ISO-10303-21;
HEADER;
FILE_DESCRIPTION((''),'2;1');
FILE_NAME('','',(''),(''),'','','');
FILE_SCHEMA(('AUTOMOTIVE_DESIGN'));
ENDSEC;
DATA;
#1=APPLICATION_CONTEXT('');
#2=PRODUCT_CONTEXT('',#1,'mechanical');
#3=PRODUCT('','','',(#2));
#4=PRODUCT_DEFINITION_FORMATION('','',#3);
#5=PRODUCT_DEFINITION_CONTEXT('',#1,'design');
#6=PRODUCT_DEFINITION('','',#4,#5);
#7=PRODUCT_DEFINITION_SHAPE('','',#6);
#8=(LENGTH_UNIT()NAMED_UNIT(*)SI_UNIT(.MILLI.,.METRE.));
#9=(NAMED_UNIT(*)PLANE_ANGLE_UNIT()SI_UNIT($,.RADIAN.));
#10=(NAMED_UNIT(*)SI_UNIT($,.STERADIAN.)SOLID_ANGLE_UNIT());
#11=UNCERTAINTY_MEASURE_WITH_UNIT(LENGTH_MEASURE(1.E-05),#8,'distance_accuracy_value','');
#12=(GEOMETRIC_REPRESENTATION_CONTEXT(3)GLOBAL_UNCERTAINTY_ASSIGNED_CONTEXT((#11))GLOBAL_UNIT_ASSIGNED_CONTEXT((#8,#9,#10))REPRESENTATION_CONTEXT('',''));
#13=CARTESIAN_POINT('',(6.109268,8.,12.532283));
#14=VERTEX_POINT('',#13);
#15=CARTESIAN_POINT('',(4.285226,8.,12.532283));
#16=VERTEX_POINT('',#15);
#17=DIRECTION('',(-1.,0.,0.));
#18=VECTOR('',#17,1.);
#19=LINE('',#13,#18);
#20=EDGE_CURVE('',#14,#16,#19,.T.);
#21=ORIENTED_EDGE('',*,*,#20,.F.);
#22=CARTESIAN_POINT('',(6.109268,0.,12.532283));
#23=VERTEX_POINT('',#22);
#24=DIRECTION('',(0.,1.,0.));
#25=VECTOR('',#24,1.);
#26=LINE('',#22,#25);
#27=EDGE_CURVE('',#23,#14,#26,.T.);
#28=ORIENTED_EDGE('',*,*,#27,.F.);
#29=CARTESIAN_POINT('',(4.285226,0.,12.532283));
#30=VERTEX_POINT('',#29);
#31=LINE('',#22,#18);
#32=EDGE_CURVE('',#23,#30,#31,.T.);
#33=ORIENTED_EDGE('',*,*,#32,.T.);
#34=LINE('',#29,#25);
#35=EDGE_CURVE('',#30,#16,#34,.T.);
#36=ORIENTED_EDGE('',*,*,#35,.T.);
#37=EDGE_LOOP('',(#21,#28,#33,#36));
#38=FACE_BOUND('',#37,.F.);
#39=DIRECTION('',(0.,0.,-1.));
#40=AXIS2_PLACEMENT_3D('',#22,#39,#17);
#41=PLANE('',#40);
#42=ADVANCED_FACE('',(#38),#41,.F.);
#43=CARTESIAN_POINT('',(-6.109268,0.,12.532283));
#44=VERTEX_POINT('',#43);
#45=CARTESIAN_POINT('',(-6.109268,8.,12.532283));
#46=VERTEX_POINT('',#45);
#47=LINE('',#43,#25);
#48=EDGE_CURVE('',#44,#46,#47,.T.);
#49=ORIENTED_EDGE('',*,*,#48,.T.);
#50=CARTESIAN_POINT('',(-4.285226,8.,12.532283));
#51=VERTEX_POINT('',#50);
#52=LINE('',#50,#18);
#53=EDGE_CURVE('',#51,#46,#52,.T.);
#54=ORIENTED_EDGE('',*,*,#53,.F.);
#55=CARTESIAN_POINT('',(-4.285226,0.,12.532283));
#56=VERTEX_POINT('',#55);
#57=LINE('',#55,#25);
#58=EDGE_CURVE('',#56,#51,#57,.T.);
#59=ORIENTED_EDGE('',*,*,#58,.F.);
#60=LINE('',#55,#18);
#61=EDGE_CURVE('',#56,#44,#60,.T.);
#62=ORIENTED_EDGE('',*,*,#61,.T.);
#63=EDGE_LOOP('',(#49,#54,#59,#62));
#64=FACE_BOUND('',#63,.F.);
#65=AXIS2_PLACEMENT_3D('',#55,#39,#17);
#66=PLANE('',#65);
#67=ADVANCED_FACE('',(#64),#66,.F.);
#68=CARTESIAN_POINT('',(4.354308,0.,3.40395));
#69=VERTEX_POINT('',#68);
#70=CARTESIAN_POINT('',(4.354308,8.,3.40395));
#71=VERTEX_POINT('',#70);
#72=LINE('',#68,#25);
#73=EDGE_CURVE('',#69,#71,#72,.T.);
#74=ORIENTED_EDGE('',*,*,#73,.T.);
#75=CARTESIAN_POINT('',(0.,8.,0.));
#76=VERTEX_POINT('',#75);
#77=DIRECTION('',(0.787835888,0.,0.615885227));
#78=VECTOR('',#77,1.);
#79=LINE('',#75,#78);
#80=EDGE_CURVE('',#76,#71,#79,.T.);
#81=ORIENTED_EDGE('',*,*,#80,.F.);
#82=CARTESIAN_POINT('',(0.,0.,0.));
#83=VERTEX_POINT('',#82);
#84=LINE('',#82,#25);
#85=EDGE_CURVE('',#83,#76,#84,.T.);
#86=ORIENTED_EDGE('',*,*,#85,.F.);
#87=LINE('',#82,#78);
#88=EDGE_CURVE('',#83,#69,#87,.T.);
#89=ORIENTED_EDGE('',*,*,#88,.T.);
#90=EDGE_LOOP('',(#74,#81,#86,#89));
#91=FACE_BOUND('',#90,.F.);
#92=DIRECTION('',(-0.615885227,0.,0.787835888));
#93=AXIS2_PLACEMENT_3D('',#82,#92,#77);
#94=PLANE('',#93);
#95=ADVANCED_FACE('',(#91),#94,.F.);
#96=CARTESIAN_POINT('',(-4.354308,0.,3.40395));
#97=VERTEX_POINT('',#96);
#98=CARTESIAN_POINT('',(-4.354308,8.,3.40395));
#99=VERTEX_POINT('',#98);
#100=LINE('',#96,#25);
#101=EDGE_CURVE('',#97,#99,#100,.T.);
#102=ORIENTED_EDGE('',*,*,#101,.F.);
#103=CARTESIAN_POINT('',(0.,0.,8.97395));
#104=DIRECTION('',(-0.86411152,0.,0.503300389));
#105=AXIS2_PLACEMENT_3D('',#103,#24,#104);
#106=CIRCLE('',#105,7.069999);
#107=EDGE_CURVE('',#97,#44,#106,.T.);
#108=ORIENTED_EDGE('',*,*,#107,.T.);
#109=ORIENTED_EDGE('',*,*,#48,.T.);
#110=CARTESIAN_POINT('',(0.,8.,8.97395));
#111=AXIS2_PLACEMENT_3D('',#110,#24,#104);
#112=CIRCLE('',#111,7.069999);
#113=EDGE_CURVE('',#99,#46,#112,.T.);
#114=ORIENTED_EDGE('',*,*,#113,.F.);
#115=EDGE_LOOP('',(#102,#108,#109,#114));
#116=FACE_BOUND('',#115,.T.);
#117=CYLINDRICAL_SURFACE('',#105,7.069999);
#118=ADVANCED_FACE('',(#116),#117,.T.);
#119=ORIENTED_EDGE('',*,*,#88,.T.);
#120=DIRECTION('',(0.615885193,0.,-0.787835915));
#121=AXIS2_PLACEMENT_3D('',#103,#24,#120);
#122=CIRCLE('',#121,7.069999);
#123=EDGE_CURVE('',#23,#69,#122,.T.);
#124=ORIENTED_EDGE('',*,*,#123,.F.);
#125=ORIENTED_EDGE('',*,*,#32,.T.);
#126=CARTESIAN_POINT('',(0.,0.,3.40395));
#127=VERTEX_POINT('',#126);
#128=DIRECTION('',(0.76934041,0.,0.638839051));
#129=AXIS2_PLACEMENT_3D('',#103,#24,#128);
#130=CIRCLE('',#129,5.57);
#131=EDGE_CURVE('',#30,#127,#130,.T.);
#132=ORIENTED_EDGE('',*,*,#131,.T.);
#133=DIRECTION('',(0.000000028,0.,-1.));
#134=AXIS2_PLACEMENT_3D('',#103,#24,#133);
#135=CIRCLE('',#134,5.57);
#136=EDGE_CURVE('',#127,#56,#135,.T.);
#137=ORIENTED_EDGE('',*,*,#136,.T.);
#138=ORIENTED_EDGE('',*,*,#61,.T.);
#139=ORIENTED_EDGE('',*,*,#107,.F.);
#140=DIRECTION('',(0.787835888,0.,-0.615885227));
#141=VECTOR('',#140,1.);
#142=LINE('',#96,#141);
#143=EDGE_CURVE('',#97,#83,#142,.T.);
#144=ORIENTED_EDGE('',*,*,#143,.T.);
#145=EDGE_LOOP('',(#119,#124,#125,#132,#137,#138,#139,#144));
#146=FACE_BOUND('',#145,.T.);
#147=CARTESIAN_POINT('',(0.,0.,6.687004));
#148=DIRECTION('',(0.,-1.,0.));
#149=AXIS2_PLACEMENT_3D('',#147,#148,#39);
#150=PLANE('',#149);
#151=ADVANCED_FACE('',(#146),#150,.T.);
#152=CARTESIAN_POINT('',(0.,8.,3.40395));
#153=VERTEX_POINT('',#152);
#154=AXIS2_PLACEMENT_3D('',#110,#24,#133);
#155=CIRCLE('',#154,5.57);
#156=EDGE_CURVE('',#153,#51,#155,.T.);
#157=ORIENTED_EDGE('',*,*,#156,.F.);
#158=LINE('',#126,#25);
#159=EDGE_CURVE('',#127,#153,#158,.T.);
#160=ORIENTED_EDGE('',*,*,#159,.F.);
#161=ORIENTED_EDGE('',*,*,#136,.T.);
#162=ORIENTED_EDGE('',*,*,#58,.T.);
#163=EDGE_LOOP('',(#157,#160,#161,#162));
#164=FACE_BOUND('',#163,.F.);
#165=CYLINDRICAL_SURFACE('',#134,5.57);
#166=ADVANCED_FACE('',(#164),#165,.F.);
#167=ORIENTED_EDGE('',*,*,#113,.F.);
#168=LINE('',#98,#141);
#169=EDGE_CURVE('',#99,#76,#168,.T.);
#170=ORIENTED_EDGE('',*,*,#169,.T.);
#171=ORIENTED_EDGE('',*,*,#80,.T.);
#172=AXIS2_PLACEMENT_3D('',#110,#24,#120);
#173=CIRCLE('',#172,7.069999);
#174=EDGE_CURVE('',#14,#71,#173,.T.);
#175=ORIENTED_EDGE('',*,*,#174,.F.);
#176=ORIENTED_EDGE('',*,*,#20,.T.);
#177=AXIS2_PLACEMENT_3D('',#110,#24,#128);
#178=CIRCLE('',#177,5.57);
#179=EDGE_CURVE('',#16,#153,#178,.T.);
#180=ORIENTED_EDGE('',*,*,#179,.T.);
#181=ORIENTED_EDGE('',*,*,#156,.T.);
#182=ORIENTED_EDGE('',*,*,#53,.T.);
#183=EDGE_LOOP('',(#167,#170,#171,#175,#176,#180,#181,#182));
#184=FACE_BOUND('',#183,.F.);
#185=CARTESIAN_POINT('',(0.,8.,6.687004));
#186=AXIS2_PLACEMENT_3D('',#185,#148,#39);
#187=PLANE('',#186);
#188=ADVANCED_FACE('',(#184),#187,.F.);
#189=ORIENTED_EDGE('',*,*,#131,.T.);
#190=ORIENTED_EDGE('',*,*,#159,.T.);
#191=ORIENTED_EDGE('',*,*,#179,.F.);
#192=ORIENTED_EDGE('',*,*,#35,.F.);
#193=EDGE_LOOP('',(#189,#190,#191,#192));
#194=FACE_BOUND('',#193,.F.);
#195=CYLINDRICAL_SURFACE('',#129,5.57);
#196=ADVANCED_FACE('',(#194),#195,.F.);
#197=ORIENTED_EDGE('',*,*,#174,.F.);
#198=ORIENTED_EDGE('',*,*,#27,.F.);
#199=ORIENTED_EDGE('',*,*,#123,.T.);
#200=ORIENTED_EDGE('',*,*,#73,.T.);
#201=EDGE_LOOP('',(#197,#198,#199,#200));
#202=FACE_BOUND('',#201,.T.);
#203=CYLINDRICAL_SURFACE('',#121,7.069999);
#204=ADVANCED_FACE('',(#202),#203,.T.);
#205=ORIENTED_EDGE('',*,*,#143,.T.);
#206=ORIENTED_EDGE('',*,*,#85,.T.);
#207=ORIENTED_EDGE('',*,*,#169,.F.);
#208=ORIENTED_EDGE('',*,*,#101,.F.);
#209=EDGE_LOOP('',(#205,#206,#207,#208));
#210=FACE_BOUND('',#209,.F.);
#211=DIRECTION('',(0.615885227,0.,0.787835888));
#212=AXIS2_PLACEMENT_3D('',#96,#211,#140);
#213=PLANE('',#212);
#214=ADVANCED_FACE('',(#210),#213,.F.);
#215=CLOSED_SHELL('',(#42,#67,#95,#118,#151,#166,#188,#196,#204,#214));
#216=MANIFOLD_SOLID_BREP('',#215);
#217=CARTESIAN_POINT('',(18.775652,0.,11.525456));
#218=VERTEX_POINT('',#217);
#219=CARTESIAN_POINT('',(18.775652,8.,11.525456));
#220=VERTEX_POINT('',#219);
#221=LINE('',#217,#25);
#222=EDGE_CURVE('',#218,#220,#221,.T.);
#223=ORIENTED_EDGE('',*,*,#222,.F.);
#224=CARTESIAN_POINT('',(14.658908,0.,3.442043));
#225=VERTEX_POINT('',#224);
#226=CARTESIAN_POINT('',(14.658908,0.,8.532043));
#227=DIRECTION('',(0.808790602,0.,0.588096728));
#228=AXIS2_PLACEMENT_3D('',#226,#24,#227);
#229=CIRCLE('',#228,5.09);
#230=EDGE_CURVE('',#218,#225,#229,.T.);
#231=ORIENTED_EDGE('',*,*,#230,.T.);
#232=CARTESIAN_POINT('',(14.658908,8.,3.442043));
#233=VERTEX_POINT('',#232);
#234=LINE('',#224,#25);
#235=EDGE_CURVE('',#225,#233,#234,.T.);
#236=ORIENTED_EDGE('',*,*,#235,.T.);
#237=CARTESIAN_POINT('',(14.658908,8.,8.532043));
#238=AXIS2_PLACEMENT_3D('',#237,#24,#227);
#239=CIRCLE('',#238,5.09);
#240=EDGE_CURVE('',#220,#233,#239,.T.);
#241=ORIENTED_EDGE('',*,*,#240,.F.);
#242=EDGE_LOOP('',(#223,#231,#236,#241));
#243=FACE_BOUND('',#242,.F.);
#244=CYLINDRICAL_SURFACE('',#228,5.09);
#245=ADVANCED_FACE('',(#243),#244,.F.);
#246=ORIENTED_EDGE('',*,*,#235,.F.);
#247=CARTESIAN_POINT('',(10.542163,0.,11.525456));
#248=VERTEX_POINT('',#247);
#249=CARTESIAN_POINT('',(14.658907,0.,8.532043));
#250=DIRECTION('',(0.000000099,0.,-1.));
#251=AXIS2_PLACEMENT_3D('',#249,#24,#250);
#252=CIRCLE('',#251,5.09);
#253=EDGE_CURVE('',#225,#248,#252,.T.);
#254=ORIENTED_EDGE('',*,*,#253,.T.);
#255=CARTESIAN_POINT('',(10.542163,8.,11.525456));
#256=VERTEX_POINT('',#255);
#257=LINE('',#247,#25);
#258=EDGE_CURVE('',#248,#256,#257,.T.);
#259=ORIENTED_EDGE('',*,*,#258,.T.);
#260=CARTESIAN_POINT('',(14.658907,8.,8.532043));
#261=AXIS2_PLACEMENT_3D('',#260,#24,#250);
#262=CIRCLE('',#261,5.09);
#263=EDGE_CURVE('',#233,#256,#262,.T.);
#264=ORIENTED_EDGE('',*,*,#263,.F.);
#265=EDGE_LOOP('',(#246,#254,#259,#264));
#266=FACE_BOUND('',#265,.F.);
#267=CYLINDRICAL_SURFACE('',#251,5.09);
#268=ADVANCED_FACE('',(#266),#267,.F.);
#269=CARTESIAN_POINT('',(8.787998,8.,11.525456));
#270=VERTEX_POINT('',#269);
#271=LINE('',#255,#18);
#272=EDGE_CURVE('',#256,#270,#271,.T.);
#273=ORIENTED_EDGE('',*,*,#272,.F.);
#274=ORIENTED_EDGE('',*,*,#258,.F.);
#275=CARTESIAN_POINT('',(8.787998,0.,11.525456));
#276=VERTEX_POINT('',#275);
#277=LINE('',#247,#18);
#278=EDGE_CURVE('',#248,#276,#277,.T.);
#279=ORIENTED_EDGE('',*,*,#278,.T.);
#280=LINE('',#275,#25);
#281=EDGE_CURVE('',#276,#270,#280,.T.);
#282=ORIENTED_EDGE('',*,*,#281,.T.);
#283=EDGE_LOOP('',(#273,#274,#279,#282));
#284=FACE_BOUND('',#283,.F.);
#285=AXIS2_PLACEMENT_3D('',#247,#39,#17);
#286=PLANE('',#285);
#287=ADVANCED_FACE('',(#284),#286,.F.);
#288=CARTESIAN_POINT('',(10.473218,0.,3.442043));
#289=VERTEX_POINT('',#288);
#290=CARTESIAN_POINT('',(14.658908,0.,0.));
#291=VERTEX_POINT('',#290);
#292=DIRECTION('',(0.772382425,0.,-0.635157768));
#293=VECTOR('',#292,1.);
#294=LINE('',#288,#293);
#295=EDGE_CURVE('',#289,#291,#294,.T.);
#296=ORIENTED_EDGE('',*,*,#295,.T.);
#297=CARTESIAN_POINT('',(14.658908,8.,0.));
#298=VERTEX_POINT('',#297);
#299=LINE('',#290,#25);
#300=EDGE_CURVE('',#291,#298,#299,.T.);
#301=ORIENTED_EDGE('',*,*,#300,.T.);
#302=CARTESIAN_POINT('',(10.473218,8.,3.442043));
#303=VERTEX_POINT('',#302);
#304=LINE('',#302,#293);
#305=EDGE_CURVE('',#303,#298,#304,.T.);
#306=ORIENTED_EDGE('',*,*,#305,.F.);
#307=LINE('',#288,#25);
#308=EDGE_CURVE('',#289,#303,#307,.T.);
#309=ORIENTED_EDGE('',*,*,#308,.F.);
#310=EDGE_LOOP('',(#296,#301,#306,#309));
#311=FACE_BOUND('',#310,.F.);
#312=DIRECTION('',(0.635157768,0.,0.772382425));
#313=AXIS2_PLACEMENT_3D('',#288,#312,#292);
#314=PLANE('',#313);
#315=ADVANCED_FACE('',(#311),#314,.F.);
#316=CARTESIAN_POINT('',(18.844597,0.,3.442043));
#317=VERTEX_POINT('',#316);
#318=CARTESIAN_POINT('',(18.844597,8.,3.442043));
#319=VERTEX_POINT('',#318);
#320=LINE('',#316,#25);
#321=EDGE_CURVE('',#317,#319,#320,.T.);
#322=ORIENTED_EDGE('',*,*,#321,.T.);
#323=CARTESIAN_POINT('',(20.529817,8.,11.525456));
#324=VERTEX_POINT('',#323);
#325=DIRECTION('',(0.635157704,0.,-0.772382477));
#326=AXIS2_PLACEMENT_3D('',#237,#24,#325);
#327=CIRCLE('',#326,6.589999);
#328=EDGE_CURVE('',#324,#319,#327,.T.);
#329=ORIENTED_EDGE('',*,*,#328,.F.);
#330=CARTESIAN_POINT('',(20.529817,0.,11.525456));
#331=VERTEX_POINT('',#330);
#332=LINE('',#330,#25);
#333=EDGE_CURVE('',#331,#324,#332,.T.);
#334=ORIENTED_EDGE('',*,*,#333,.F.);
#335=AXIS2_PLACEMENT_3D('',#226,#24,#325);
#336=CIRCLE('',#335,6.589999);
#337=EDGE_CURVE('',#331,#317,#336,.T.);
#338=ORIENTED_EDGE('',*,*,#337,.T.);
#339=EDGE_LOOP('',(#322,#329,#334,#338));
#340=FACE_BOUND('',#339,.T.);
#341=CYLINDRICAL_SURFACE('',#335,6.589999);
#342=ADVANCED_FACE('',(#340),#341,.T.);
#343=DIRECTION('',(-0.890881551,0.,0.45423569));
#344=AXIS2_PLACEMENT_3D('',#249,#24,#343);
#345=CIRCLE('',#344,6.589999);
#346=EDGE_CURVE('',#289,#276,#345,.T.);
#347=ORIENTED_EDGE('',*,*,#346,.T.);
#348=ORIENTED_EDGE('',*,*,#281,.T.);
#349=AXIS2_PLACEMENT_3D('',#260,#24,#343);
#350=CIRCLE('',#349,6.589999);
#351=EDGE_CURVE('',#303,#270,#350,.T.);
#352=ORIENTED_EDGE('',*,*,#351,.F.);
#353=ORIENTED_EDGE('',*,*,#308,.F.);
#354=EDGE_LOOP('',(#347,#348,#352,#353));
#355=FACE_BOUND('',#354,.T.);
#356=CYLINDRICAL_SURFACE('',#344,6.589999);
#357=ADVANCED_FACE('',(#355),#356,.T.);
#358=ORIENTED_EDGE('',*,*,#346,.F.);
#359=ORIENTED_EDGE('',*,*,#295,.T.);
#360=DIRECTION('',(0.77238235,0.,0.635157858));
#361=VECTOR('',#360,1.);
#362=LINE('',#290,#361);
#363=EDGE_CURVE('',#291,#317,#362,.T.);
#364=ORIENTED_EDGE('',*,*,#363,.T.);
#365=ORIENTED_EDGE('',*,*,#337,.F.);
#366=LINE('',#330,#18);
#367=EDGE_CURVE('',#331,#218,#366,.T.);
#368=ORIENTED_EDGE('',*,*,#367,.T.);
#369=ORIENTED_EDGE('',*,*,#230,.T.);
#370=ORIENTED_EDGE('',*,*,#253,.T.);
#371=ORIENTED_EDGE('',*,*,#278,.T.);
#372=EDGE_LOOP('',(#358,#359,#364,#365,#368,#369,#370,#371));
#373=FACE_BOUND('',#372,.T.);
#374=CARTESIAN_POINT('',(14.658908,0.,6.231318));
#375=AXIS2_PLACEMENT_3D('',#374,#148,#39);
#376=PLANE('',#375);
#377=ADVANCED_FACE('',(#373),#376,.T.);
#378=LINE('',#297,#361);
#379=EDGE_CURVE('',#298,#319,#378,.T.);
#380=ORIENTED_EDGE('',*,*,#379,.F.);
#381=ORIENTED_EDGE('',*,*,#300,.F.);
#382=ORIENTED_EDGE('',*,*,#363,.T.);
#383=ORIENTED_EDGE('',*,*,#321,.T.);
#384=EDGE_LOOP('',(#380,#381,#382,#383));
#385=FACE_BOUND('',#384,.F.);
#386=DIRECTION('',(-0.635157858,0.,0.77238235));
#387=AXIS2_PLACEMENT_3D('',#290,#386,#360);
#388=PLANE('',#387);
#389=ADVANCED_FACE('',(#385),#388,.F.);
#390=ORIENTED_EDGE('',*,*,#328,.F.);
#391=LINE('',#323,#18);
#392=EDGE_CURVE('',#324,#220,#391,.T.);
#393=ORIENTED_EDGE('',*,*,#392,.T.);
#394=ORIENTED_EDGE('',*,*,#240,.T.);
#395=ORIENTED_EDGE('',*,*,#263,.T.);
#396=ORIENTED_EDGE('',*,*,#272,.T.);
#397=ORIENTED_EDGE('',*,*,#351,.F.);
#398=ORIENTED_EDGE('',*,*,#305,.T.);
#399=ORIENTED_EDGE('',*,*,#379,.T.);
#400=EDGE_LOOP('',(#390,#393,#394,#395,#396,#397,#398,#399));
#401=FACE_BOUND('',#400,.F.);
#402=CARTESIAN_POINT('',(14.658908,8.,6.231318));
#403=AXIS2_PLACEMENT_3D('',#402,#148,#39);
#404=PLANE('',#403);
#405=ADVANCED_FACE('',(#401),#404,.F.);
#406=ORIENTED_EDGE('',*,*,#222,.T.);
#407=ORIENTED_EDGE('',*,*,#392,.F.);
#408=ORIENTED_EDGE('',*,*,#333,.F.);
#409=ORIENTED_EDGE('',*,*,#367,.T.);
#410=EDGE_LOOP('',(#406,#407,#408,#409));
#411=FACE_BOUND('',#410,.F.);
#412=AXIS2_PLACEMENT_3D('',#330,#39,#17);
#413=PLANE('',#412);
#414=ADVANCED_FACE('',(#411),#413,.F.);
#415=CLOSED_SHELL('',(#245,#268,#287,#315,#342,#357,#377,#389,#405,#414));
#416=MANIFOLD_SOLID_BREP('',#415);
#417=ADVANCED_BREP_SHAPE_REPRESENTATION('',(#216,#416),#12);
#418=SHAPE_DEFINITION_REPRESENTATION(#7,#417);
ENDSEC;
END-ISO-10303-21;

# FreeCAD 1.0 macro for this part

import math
import FreeCAD as App
import Part
import Sketcher
from FreeCAD import Vector
Q = App.Units.Quantity

doc = App.newDocument("Part")
body = doc.addObject("PartDesign::Body", "Body")

# Sketch on XZ plane
sketch1 = body.newObject("Sketcher::SketchObject", "Sketch")
sketch1.AttachmentSupport = (doc.getObject("XZ_Plane"), [""])
sketch1.MapMode = "FlatFace"
sketch1.addGeometry(Part.LineSegment(Vector(-4.3, 12.5, 0), Vector(-6.1, 12.5, 0)), False)
sketch1.addGeometry(Part.ArcOfCircle(Part.Circle(Vector(0, 9, 0), Vector(0, 0, 1), 7.1), math.radians(150), math.radians(232)), False)
sketch1.addGeometry(Part.LineSegment(Vector(-4.4, 3.4, 0), Vector(0, 0, 0)), False)
sketch1.addGeometry(Part.LineSegment(Vector(0, 0, 0), Vector(4.4, 3.4, 0)), False)
sketch1.addGeometry(Part.ArcOfCircle(Part.Circle(Vector(0, 9, 0), Vector(0, 0, 1), 7.1), math.radians(-52), math.radians(30)), False)
sketch1.addGeometry(Part.LineSegment(Vector(6.1, 12.5, 0), Vector(4.3, 12.5, 0)), False)
sketch1.addGeometry(Part.ArcOfCircle(Part.Circle(Vector(0, 9, 0), Vector(0, 0, 1), 5.6), math.radians(-90), math.radians(40)), False)
sketch1.addGeometry(Part.ArcOfCircle(Part.Circle(Vector(0, 9, 0), Vector(0, 0, 1), 5.6), math.radians(140), math.radians(270)), False)
sketch1.addConstraint(Sketcher.Constraint("Coincident", 0, 2, 1, 1))
sketch1.addConstraint(Sketcher.Constraint("Tangent", 1, 2, 2, 1))
sketch1.addConstraint(Sketcher.Constraint("Coincident", 2, 2, 3, 1))
sketch1.addConstraint(Sketcher.Constraint("Tangent", 3, 2, 4, 1))
sketch1.addConstraint(Sketcher.Constraint("Coincident", 4, 2, 5, 1))
sketch1.addConstraint(Sketcher.Constraint("Coincident", 5, 2, 6, 2))
sketch1.addConstraint(Sketcher.Constraint("Tangent", 6, 1, 7, 2))
sketch1.addConstraint(Sketcher.Constraint("Coincident", 7, 1, 0, 1))
sketch1.addConstraint(Sketcher.Constraint("Horizontal", 0))
sketch1.addConstraint(Sketcher.Constraint("Horizontal", 5))
sketch1.addConstraint(Sketcher.Constraint("Coincident", 2, 2, -1, 1))
sketch1.addConstraint(Sketcher.Constraint("Coincident", 4, 3, 1, 3))
sketch1.addConstraint(Sketcher.Constraint("Coincident", 6, 3, 1, 3))
sketch1.addConstraint(Sketcher.Constraint("Equal", 1, 4))
sketch1.addConstraint(Sketcher.Constraint("Equal", 6, 7))
sketch1.addConstraint(Sketcher.Constraint("Symmetric", 0, 2, 4, 2, -2))
sketch1.addConstraint(Sketcher.Constraint("PointOnObject", 6, 1, -2))
sketch1.addConstraint(Sketcher.Constraint("Horizontal", 3, 2, 6, 1))
sketch1.addConstraint(Sketcher.Constraint("Radius", 1, Q("7.069999 mm")))
sketch1.addConstraint(Sketcher.Constraint("Radius", 6, Q("5.57 mm")))
sketch1.addConstraint(Sketcher.Constraint("DistanceX", 0, 2, 0, 1, Q("1.824042 mm")))

# Sketch on XY plane
sketch2 = body.newObject("Sketcher::SketchObject", "Sketch001")
sketch2.AttachmentSupport = (doc.getObject("XY_Plane"), [""])
sketch2.MapMode = "FlatFace"
sketch2.addGeometry(Part.LineSegment(Vector(0, 0, 0), Vector(0, 8, 0)), False)
sketch2.addConstraint(Sketcher.Constraint("Vertical", 0))
sketch2.addConstraint(Sketcher.Constraint("Coincident", 0, 1, -1, 1))
sketch2.addConstraint(Sketcher.Constraint("DistanceY", 0, 1, 0, 2, Q("8 mm")))
doc.recompute()

additivepipe = body.newObject("PartDesign::AdditivePipe", "AdditivePipe")
additivepipe.Profile = sketch1
additivepipe.Spine = (sketch2, ["Edge1"])
body2 = doc.addObject("PartDesign::Body", "Body001")

# Sketch on XZ plane
sketch3 = body2.newObject("Sketcher::SketchObject", "Sketch002")
sketch3.AttachmentSupport = (doc.getObject("XZ_Plane001"), [""])
sketch3.MapMode = "FlatFace"
sketch3.addGeometry(Part.LineSegment(Vector(10.5, 11.5, 0), Vector(8.8, 11.5, 0)), False)
sketch3.addGeometry(Part.ArcOfCircle(Part.Circle(Vector(14.7, 8.5, 0), Vector(0, 0, 1), 6.6), math.radians(153), math.radians(231)), False)
sketch3.addGeometry(Part.LineSegment(Vector(10.5, 3.4, 0), Vector(14.7, 0, 0)), False)
sketch3.addGeometry(Part.LineSegment(Vector(14.7, 0, 0), Vector(18.8, 3.4, 0)), False)
sketch3.addGeometry(Part.ArcOfCircle(Part.Circle(Vector(14.7, 8.5, 0), Vector(0, 0, 1), 6.6), math.radians(-51), math.radians(27)), False)
sketch3.addGeometry(Part.LineSegment(Vector(20.5, 11.5, 0), Vector(18.8, 11.5, 0)), False)
sketch3.addGeometry(Part.ArcOfCircle(Part.Circle(Vector(14.7, 8.5, 0), Vector(0, 0, 1), 5.1), math.radians(-90), math.radians(36)), False)
sketch3.addGeometry(Part.ArcOfCircle(Part.Circle(Vector(14.7, 8.5, 0), Vector(0, 0, 1), 5.1), math.radians(144), math.radians(270)), False)
sketch3.addConstraint(Sketcher.Constraint("Coincident", 0, 2, 1, 1))
sketch3.addConstraint(Sketcher.Constraint("Tangent", 1, 2, 2, 1))
sketch3.addConstraint(Sketcher.Constraint("Coincident", 2, 2, 3, 1))
sketch3.addConstraint(Sketcher.Constraint("Tangent", 3, 2, 4, 1))
sketch3.addConstraint(Sketcher.Constraint("Coincident", 4, 2, 5, 1))
sketch3.addConstraint(Sketcher.Constraint("Coincident", 5, 2, 6, 2))
sketch3.addConstraint(Sketcher.Constraint("Tangent", 6, 1, 7, 2))
sketch3.addConstraint(Sketcher.Constraint("Coincident", 7, 1, 0, 1))
sketch3.addConstraint(Sketcher.Constraint("Horizontal", 0))
sketch3.addConstraint(Sketcher.Constraint("Horizontal", 5))
sketch3.addConstraint(Sketcher.Constraint("Coincident", 4, 3, 1, 3))
sketch3.addConstraint(Sketcher.Constraint("Coincident", 6, 3, 1, 3))
sketch3.addConstraint(Sketcher.Constraint("Equal", 1, 4))
sketch3.addConstraint(Sketcher.Constraint("Equal", 6, 7))
sketch3.addConstraint(Sketcher.Constraint("PointOnObject", 2, 2, -1))
sketch3.addConstraint(Sketcher.Constraint("Horizontal", 1, 2, 3, 2))
sketch3.addConstraint(Sketcher.Constraint("Horizontal", 0, 2, 4, 2))
sketch3.addConstraint(Sketcher.Constraint("Horizontal", 3, 2, 6, 1))
sketch3.addConstraint(Sketcher.Constraint("Vertical", 2, 2, 6, 1))
sketch3.addConstraint(Sketcher.Constraint("Radius", 1, Q("6.589999 mm")))
sketch3.addConstraint(Sketcher.Constraint("Radius", 6, Q("5.09 mm")))
sketch3.addConstraint(Sketcher.Constraint("DistanceX", 0, 2, 0, 1, Q("1.754165 mm")))
sketch3.addConstraint(Sketcher.Constraint("DistanceX", -1, 1, 4, 3, Q("14.658908 mm")))

# Sketch on XY plane
sketch4 = body2.newObject("Sketcher::SketchObject", "Sketch003")
sketch4.AttachmentSupport = (doc.getObject("XY_Plane001"), [""])
sketch4.MapMode = "FlatFace"
sketch4.addGeometry(Part.LineSegment(Vector(15, 0, 0), Vector(15, 8, 0)), False)
sketch4.addConstraint(Sketcher.Constraint("Vertical", 0))
sketch4.addConstraint(Sketcher.Constraint("PointOnObject", 0, 1, -1))
sketch4.addConstraint(Sketcher.Constraint("DistanceY", 0, 1, 0, 2, Q("8 mm")))
sketch4.addConstraint(Sketcher.Constraint("DistanceX", -1, 1, 0, 1, Q("14.658908 mm")))
doc.recompute()

additivepipe2 = body2.newObject("PartDesign::AdditivePipe", "AdditivePipe001")
additivepipe2.Profile = sketch3
additivepipe2.Spine = (sketch4, ["Edge1"])

doc.recompute()
